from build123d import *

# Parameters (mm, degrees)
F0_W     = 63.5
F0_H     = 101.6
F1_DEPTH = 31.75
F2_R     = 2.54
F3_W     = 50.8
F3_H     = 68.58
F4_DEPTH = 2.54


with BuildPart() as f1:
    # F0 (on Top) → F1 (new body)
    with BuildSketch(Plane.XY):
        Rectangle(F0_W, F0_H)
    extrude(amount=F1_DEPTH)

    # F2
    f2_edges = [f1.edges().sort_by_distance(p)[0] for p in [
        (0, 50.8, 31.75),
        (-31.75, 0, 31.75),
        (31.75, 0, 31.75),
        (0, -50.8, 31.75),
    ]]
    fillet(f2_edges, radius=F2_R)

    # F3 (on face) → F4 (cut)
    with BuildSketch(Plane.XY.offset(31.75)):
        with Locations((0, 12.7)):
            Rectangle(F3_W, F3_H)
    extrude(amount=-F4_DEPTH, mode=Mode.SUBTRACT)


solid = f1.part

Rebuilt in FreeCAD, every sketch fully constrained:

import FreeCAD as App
import Part
import Sketcher
from FreeCAD import Vector
Q = App.Units.Quantity


def edges_at(feature, points):
    """Names of the edges that pass closest to the given points."""
    edges = feature.Shape.Edges
    near = lambda p: min(range(len(edges)), key=lambda i: edges[i].distToShape(Part.Vertex(*p))[0])
    return sorted({f"Edge{near(p) + 1}" for p in points})


def add_polygon(sketch, points):
    """Adds a closed chain of lines whose ends are joined by coincident constraints."""
    first, n = sketch.GeometryCount, len(points)
    for a, b in zip(points, points[1:] + points[:1]):
        sketch.addGeometry(Part.LineSegment(App.Vector(*a, 0), App.Vector(*b, 0)), False)
    for i in range(n):
        sketch.addConstraint(Sketcher.Constraint("Coincident", first + i, 2, first + (i + 1) % n, 1))

doc = App.newDocument("Part")
body = doc.addObject("PartDesign::Body", "Body")

# Sketch on XY plane
sketch1 = doc.addObject("Sketcher::SketchObject", "Sketch")
body.addObject(sketch1)
sketch1.AttachmentSupport = (doc.XY_Plane, [""])
sketch1.MapMode = "FlatFace"
add_polygon(sketch1, [(-32, 51), (-32, -51), (32, -51), (32, 51)])  # lines 0-3
sketch1.addConstraint([
    Sketcher.Constraint("Vertical", 0),
    Sketcher.Constraint("Horizontal", 1),
    Sketcher.Constraint("Vertical", 2),
    Sketcher.Constraint("Horizontal", 3),
    Sketcher.Constraint("Symmetric", 0, 2, 2, 2, -1, 1),
    Sketcher.Constraint("DistanceY", 0, 2, 0, 1, Q("4 in")),
    Sketcher.Constraint("DistanceX", 1, 1, 1, 2, Q("2.5 in")),
])
pad1 = doc.addObject("PartDesign::Pad", "Pad")
body.addObject(pad1)
pad1.Profile = sketch1
pad1.Length = Q("1.25 in")
doc.recompute()

fillet = doc.addObject("PartDesign::Fillet", "Fillet")
body.addObject(fillet)
fillet.Base = (pad1, edges_at(pad1, [
    (0, 50.8, 31.75),
    (-31.75, 0, 31.75),
    (31.75, 0, 31.75),
    (0, -50.8, 31.75),
]))
fillet.Radius = Q("0.1 in")

# Sketch on XY plane
sketch2 = doc.addObject("Sketcher::SketchObject", "Sketch001")
body.addObject(sketch2)
sketch2.AttachmentSupport = (doc.XY_Plane, [""])
sketch2.MapMode = "FlatFace"
sketch2.AttachmentOffset = App.Placement(Vector(0, 0, 1.25 * 25.4), App.Rotation())
add_polygon(sketch2, [(-25, 47), (-25, -22), (25, -22), (25, 47)])  # lines 0-3
sketch2.addConstraint([
    Sketcher.Constraint("Vertical", 0),
    Sketcher.Constraint("Horizontal", 1),
    Sketcher.Constraint("Vertical", 2),
    Sketcher.Constraint("Horizontal", 3),
    Sketcher.Constraint("DistanceX", 1, 1, 1, 2, Q("2 in")),
    Sketcher.Constraint("DistanceY", 0, 2, 0, 1, Q("2.7 in")),
    Sketcher.Constraint("DistanceX", 0, 2, -1, 1, Q("1 in")),
    Sketcher.Constraint("DistanceY", 0, 2, -1, 1, Q("0.85 in")),
])
pocket1 = doc.addObject("PartDesign::Pocket", "Pocket")
body.addObject(pocket1)
pocket1.Profile = sketch2
pocket1.Length = Q("0.1 in")

doc.recompute()
